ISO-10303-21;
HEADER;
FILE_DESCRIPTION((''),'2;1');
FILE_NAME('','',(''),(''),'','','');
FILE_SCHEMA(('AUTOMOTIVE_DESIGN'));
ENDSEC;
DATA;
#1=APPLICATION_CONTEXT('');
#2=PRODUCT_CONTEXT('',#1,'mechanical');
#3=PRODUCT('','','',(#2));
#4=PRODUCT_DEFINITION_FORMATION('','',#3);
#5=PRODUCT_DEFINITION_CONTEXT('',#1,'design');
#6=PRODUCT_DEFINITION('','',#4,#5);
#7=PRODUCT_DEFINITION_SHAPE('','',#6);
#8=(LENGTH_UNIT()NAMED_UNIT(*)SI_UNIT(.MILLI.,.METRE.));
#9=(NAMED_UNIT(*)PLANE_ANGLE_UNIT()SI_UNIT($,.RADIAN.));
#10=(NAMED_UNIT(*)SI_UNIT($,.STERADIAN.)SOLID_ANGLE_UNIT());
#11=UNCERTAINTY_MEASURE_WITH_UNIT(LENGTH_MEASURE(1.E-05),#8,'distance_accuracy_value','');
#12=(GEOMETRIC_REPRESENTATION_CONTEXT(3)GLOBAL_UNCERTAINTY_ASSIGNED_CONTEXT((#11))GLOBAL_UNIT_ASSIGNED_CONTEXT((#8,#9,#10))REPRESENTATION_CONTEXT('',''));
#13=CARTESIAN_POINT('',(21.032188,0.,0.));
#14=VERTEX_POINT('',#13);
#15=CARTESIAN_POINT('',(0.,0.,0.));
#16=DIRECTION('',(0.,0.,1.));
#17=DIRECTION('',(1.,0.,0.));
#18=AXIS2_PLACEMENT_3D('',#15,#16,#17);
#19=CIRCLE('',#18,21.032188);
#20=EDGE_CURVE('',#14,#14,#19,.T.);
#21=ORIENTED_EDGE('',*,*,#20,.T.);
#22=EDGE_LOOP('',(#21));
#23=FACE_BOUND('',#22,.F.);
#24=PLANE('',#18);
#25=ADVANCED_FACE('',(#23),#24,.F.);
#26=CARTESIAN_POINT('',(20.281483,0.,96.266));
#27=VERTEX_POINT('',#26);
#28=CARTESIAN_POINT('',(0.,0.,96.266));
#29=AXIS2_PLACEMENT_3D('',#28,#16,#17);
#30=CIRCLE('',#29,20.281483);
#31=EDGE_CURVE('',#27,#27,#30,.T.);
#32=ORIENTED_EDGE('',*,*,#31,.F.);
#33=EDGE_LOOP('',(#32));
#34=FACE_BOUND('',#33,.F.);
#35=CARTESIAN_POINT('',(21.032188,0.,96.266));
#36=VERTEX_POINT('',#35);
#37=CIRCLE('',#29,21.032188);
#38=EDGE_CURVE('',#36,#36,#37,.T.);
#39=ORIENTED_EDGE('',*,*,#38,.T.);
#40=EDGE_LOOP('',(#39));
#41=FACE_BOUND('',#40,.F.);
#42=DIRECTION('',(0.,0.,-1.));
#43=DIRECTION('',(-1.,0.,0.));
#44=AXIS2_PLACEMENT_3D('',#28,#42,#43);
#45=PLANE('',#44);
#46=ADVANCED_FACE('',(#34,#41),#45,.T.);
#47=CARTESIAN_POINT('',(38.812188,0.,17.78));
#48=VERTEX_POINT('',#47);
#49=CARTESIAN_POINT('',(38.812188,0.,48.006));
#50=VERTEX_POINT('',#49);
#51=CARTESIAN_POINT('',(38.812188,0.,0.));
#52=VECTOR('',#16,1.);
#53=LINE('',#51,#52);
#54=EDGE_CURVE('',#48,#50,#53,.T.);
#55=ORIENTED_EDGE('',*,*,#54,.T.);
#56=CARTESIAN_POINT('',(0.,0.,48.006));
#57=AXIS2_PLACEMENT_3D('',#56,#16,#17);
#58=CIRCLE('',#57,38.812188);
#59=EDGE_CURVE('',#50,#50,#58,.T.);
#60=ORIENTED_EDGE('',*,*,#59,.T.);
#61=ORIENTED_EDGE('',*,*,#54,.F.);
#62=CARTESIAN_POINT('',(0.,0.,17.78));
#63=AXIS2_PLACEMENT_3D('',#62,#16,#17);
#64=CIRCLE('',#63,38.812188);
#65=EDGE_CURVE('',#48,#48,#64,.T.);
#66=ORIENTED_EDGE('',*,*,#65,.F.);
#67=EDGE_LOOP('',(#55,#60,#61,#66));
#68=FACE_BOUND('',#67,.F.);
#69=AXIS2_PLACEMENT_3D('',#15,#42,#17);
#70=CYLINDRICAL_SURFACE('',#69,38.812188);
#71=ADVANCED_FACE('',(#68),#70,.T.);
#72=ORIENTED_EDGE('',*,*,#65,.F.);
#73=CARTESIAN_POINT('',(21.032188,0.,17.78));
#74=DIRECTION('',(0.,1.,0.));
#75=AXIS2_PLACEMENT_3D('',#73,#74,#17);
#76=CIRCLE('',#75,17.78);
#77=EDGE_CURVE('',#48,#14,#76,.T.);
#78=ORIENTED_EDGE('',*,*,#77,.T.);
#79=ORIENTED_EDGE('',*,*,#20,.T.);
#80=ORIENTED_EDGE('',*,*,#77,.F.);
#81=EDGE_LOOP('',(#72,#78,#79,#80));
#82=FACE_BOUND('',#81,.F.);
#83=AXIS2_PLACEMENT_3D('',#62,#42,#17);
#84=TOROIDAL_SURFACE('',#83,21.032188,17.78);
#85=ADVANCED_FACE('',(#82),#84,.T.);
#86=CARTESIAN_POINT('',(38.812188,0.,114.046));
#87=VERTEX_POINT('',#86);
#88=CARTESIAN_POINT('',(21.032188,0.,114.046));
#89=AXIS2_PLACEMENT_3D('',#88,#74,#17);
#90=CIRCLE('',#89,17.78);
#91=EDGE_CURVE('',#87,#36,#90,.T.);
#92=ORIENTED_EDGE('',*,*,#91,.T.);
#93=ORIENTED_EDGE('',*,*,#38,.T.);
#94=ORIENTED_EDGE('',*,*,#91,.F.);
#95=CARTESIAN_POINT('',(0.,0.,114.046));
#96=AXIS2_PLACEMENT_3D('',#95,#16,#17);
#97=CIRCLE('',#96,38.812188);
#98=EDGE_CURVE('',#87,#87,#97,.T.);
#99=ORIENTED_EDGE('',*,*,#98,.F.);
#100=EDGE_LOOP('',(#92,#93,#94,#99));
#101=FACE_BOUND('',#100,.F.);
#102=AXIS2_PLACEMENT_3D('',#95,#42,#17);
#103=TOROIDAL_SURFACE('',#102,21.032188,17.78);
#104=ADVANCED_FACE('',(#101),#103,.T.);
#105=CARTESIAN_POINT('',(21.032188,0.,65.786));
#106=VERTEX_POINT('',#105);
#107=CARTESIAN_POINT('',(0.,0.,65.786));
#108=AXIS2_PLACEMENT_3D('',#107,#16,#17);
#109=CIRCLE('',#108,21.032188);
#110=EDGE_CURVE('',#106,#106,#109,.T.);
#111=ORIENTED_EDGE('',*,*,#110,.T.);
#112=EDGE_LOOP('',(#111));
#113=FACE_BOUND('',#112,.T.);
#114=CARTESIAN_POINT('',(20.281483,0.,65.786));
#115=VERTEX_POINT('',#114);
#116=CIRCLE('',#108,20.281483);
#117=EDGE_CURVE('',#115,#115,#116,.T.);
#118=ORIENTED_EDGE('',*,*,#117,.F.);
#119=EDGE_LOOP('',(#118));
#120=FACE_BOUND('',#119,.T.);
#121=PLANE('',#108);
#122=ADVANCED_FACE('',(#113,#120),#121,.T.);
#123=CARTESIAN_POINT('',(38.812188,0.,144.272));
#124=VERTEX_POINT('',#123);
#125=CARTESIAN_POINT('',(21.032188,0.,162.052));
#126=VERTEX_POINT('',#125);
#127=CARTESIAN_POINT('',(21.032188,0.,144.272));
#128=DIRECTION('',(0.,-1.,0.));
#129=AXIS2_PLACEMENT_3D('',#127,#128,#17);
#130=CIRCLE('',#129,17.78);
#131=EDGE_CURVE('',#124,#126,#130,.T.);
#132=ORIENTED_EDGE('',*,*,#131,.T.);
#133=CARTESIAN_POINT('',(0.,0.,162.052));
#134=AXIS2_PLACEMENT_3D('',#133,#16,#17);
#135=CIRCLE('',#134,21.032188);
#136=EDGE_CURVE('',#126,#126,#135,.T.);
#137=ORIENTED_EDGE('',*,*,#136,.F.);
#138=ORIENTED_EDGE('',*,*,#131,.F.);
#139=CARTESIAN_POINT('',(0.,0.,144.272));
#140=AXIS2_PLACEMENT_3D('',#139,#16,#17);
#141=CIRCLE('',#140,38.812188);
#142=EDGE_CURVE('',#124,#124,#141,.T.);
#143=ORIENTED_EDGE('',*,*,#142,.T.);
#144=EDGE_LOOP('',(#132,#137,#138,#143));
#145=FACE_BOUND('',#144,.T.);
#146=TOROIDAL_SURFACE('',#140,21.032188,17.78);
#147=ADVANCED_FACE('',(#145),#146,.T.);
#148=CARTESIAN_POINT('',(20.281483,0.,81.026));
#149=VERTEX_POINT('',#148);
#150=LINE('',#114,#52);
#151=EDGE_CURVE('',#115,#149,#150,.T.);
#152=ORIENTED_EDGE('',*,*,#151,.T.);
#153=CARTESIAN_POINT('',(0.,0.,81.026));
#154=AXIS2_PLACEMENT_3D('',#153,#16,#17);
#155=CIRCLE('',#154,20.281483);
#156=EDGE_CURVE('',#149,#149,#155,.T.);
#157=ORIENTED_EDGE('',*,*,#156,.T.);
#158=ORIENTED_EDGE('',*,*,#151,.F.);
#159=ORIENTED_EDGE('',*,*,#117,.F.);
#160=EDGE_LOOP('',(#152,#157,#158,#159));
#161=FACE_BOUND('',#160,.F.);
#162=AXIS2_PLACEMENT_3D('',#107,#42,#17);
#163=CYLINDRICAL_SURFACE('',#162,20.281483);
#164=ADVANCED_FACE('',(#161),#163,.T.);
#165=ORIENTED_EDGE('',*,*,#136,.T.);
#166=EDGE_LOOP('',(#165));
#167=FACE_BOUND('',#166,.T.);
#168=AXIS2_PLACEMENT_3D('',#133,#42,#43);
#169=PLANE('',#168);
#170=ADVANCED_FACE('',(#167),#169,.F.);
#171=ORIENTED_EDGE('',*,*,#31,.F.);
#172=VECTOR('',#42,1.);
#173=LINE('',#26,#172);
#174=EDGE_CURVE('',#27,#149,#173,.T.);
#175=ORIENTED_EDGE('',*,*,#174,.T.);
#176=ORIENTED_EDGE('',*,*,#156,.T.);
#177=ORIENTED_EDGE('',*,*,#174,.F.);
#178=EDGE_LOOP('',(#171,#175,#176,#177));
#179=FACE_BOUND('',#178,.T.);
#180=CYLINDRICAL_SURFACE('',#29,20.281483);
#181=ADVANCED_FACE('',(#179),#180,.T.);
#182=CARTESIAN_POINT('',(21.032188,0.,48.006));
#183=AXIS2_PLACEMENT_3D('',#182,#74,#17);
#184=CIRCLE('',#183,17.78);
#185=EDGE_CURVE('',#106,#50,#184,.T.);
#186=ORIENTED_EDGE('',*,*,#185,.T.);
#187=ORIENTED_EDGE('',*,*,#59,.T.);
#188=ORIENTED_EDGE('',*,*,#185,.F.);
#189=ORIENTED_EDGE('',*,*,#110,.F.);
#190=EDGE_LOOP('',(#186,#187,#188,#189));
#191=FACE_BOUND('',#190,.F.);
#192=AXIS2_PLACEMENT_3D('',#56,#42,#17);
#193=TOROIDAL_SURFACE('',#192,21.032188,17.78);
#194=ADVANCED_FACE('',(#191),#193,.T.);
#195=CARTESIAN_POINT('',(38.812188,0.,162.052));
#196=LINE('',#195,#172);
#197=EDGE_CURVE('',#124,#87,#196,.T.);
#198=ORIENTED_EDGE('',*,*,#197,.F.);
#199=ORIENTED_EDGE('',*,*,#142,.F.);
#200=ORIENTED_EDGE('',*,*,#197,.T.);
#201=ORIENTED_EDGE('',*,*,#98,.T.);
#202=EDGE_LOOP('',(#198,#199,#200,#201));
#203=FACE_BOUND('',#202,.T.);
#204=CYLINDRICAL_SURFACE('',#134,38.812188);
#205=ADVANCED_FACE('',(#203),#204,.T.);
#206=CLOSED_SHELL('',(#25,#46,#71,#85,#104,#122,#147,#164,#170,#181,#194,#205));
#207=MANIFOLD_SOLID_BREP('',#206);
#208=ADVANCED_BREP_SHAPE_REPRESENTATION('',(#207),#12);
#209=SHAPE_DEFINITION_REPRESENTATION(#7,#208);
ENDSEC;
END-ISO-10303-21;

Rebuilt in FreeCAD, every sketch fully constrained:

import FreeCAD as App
import Part
import Sketcher
Q = App.Units.Quantity


def edges_at(feature, points):
    """Names of the edges that pass closest to the given points."""
    edges = feature.Shape.Edges
    near = lambda p: min(range(len(edges)), key=lambda i: edges[i].distToShape(Part.Vertex(*p))[0])
    return sorted({f"Edge{near(p) + 1}" for p in points})

doc = App.newDocument("Part")
body = doc.addObject("PartDesign::Body", "Body")

# Sketch on XY plane
sketch1 = body.newObject("Sketcher::SketchObject", "Sketch")
sketch1.AttachmentSupport = (doc.getObject("XY_Plane"), [""])
sketch1.MapMode = "FlatFace"
sketch1.addGeometry(Part.Circle(App.Vector(0, 0, 0), App.Vector(0, 0, 1), 38.812188), False)
sketch1.addConstraint([
    Sketcher.Constraint("Coincident", 0, 3, -1, 1),
    Sketcher.Constraint("Diameter", 0, Q("77.624377 mm")),
])
pad1 = body.newObject("PartDesign::Pad", "Pad")
pad1.Profile = sketch1
pad1.Length = Q("2.59 in")

# Sketch on XY plane
sketch2 = body.newObject("Sketcher::SketchObject", "Sketch001")
sketch2.AttachmentSupport = (doc.getObject("XY_Plane"), [""])
sketch2.MapMode = "FlatFace"
sketch2.AttachmentOffset = App.Placement(App.Vector(0, 0, 2.59 * 25.4), App.Rotation())
sketch2.addGeometry(Part.Circle(App.Vector(0, 0, 0), App.Vector(0, 0, 1), 20.281483), False)
sketch2.addConstraint([
    Sketcher.Constraint("Coincident", 0, 3, -1, 1),
    Sketcher.Constraint("Diameter", 0, Q("40.562966 mm")),
])
pad2 = body.newObject("PartDesign::Pad", "Pad001")
pad2.Profile = sketch2
pad2.Length = Q("0.6 in")
body2 = doc.addObject("PartDesign::Body", "Body001")
doc.recompute()

body2.BaseFeature = body
doc.recompute()

mirroring = doc.addObject("Part::Mirroring", "Mirroring")
mirroring.Source = body
mirroring.Base = App.Vector(0, 0, 81.026)
mirroring.Normal = App.Vector(0, 0, 1)
body3 = doc.addObject("PartDesign::Body", "Body002")
body3.BaseFeature = mirroring
boolean = body2.newObject("PartDesign::Boolean", "Boolean")
boolean.Type = "Fuse"
boolean.addObjects([body3])
doc.recompute()

fillet = body2.newObject("PartDesign::Fillet", "Fillet")
fillet.Base = (boolean, edges_at(boolean, [
    (38.812, 0, 129.159),
    (-38.812, 0, 162.052),
    (-38.812, 0, 96.266),
    (38.812, 0, 32.893),
    (-38.812, 0, 0),
    (-38.812, 0, 65.786),
]))
fillet.Radius = Q("0.7 in")
mirroring.Visibility = False

doc.recompute()
